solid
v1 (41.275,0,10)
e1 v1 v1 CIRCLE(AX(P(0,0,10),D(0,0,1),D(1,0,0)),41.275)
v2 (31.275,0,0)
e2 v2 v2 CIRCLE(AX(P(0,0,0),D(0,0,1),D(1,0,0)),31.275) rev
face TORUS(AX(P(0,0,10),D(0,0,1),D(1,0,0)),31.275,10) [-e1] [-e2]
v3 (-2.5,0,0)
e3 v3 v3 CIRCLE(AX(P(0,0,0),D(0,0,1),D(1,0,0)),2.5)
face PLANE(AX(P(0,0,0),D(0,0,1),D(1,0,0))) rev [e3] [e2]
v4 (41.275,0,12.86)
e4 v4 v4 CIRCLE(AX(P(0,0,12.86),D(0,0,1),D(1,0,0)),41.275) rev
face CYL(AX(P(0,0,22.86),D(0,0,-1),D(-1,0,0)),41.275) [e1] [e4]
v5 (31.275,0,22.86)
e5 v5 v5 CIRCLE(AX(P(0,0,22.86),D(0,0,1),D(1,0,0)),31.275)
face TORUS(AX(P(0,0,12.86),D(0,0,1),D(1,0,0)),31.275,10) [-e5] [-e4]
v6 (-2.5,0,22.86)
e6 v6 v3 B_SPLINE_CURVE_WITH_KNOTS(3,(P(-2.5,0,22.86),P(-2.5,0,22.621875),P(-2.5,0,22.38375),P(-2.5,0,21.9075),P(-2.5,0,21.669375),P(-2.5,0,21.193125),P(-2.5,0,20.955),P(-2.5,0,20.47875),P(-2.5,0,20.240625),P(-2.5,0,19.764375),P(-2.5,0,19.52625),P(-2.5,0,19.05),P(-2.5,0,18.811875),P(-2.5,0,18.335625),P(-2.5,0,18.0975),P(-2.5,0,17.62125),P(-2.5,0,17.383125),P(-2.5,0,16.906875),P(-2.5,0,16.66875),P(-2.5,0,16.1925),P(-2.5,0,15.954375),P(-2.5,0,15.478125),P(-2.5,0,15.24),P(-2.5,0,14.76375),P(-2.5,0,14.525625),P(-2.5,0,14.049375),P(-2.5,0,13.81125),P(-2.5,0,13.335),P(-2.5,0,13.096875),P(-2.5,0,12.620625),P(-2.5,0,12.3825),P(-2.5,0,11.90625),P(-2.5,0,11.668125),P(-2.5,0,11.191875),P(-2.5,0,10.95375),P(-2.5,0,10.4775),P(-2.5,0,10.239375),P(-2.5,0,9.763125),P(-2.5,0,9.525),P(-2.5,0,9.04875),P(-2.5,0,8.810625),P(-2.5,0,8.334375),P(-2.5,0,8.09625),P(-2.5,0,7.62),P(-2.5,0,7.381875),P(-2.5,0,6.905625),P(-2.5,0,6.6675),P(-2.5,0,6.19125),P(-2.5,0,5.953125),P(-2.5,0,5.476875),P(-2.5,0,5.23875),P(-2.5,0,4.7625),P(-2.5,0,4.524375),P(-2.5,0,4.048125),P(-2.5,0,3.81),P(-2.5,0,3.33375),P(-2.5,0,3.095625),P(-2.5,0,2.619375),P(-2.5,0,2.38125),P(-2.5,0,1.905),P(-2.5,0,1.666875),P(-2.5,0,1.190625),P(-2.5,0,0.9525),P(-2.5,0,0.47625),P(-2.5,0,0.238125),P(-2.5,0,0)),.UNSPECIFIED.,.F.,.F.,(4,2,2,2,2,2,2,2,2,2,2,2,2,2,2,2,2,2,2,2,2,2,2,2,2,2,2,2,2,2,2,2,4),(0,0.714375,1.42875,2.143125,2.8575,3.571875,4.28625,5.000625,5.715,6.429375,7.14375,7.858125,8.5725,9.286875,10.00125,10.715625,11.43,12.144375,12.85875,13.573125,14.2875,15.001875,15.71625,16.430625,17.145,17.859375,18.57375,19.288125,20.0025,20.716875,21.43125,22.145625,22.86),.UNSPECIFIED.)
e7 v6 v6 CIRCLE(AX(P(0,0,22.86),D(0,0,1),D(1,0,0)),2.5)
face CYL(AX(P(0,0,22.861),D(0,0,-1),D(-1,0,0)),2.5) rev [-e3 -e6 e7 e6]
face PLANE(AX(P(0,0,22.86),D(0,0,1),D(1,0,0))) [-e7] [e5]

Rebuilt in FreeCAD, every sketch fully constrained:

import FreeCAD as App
import Part
import Sketcher
from FreeCAD import Vector


def edges_at(feature, points):
    """Names of the edges that pass closest to the given points."""
    edges = feature.Shape.Edges
    near = lambda p: min(range(len(edges)), key=lambda i: edges[i].distToShape(Part.Vertex(*p))[0])
    return sorted({f"Edge{near(p) + 1}" for p in points})

doc = App.newDocument("Part")
body = doc.addObject("PartDesign::Body", "Body")

sketch1 = body.newObject("Sketcher::SketchObject", "Sketch")
sketch1.AttachmentSupport = (doc.getObject("XY_Plane"), [""])
sketch1.MapMode = "FlatFace"
sketch1.addGeometry(Part.Circle(Vector(0, 0, 0), Vector(0, 0, 1), 41), False)
sketch1.addConstraint([
    Sketcher.Constraint("Coincident", 0, 3, -1, 1),
    Sketcher.Constraint("Diameter", 0, 82.55),
])
pad1 = body.newObject("PartDesign::Pad", "Pad")
pad1.Profile = sketch1
pad1.Length = 22.86

sketch2 = body.newObject("Sketcher::SketchObject", "Sketch001")
sketch2.AttachmentSupport = (doc.getObject("XY_Plane"), [""])
sketch2.MapMode = "FlatFace"
sketch2.addGeometry(Part.Circle(Vector(0, 0, 0), Vector(0, 0, 1), 2.5), False)
sketch2.addConstraint([
    Sketcher.Constraint("Coincident", 0, 3, -1, 1),
    Sketcher.Constraint("Diameter", 0, 5.0),
])
pocket1 = body.newObject("PartDesign::Pocket", "Pocket")
pocket1.Profile = sketch2
pocket1.Type = "UpToFirst"
pocket1.Reversed = True
doc.recompute()

fillet = body.newObject("PartDesign::Fillet", "Fillet")
fillet.Base = (pocket1, edges_at(pocket1, [(-41.275, 0, 0), (-41.275, 0, 22.86)]))
fillet.Radius = 10

doc.recompute()
